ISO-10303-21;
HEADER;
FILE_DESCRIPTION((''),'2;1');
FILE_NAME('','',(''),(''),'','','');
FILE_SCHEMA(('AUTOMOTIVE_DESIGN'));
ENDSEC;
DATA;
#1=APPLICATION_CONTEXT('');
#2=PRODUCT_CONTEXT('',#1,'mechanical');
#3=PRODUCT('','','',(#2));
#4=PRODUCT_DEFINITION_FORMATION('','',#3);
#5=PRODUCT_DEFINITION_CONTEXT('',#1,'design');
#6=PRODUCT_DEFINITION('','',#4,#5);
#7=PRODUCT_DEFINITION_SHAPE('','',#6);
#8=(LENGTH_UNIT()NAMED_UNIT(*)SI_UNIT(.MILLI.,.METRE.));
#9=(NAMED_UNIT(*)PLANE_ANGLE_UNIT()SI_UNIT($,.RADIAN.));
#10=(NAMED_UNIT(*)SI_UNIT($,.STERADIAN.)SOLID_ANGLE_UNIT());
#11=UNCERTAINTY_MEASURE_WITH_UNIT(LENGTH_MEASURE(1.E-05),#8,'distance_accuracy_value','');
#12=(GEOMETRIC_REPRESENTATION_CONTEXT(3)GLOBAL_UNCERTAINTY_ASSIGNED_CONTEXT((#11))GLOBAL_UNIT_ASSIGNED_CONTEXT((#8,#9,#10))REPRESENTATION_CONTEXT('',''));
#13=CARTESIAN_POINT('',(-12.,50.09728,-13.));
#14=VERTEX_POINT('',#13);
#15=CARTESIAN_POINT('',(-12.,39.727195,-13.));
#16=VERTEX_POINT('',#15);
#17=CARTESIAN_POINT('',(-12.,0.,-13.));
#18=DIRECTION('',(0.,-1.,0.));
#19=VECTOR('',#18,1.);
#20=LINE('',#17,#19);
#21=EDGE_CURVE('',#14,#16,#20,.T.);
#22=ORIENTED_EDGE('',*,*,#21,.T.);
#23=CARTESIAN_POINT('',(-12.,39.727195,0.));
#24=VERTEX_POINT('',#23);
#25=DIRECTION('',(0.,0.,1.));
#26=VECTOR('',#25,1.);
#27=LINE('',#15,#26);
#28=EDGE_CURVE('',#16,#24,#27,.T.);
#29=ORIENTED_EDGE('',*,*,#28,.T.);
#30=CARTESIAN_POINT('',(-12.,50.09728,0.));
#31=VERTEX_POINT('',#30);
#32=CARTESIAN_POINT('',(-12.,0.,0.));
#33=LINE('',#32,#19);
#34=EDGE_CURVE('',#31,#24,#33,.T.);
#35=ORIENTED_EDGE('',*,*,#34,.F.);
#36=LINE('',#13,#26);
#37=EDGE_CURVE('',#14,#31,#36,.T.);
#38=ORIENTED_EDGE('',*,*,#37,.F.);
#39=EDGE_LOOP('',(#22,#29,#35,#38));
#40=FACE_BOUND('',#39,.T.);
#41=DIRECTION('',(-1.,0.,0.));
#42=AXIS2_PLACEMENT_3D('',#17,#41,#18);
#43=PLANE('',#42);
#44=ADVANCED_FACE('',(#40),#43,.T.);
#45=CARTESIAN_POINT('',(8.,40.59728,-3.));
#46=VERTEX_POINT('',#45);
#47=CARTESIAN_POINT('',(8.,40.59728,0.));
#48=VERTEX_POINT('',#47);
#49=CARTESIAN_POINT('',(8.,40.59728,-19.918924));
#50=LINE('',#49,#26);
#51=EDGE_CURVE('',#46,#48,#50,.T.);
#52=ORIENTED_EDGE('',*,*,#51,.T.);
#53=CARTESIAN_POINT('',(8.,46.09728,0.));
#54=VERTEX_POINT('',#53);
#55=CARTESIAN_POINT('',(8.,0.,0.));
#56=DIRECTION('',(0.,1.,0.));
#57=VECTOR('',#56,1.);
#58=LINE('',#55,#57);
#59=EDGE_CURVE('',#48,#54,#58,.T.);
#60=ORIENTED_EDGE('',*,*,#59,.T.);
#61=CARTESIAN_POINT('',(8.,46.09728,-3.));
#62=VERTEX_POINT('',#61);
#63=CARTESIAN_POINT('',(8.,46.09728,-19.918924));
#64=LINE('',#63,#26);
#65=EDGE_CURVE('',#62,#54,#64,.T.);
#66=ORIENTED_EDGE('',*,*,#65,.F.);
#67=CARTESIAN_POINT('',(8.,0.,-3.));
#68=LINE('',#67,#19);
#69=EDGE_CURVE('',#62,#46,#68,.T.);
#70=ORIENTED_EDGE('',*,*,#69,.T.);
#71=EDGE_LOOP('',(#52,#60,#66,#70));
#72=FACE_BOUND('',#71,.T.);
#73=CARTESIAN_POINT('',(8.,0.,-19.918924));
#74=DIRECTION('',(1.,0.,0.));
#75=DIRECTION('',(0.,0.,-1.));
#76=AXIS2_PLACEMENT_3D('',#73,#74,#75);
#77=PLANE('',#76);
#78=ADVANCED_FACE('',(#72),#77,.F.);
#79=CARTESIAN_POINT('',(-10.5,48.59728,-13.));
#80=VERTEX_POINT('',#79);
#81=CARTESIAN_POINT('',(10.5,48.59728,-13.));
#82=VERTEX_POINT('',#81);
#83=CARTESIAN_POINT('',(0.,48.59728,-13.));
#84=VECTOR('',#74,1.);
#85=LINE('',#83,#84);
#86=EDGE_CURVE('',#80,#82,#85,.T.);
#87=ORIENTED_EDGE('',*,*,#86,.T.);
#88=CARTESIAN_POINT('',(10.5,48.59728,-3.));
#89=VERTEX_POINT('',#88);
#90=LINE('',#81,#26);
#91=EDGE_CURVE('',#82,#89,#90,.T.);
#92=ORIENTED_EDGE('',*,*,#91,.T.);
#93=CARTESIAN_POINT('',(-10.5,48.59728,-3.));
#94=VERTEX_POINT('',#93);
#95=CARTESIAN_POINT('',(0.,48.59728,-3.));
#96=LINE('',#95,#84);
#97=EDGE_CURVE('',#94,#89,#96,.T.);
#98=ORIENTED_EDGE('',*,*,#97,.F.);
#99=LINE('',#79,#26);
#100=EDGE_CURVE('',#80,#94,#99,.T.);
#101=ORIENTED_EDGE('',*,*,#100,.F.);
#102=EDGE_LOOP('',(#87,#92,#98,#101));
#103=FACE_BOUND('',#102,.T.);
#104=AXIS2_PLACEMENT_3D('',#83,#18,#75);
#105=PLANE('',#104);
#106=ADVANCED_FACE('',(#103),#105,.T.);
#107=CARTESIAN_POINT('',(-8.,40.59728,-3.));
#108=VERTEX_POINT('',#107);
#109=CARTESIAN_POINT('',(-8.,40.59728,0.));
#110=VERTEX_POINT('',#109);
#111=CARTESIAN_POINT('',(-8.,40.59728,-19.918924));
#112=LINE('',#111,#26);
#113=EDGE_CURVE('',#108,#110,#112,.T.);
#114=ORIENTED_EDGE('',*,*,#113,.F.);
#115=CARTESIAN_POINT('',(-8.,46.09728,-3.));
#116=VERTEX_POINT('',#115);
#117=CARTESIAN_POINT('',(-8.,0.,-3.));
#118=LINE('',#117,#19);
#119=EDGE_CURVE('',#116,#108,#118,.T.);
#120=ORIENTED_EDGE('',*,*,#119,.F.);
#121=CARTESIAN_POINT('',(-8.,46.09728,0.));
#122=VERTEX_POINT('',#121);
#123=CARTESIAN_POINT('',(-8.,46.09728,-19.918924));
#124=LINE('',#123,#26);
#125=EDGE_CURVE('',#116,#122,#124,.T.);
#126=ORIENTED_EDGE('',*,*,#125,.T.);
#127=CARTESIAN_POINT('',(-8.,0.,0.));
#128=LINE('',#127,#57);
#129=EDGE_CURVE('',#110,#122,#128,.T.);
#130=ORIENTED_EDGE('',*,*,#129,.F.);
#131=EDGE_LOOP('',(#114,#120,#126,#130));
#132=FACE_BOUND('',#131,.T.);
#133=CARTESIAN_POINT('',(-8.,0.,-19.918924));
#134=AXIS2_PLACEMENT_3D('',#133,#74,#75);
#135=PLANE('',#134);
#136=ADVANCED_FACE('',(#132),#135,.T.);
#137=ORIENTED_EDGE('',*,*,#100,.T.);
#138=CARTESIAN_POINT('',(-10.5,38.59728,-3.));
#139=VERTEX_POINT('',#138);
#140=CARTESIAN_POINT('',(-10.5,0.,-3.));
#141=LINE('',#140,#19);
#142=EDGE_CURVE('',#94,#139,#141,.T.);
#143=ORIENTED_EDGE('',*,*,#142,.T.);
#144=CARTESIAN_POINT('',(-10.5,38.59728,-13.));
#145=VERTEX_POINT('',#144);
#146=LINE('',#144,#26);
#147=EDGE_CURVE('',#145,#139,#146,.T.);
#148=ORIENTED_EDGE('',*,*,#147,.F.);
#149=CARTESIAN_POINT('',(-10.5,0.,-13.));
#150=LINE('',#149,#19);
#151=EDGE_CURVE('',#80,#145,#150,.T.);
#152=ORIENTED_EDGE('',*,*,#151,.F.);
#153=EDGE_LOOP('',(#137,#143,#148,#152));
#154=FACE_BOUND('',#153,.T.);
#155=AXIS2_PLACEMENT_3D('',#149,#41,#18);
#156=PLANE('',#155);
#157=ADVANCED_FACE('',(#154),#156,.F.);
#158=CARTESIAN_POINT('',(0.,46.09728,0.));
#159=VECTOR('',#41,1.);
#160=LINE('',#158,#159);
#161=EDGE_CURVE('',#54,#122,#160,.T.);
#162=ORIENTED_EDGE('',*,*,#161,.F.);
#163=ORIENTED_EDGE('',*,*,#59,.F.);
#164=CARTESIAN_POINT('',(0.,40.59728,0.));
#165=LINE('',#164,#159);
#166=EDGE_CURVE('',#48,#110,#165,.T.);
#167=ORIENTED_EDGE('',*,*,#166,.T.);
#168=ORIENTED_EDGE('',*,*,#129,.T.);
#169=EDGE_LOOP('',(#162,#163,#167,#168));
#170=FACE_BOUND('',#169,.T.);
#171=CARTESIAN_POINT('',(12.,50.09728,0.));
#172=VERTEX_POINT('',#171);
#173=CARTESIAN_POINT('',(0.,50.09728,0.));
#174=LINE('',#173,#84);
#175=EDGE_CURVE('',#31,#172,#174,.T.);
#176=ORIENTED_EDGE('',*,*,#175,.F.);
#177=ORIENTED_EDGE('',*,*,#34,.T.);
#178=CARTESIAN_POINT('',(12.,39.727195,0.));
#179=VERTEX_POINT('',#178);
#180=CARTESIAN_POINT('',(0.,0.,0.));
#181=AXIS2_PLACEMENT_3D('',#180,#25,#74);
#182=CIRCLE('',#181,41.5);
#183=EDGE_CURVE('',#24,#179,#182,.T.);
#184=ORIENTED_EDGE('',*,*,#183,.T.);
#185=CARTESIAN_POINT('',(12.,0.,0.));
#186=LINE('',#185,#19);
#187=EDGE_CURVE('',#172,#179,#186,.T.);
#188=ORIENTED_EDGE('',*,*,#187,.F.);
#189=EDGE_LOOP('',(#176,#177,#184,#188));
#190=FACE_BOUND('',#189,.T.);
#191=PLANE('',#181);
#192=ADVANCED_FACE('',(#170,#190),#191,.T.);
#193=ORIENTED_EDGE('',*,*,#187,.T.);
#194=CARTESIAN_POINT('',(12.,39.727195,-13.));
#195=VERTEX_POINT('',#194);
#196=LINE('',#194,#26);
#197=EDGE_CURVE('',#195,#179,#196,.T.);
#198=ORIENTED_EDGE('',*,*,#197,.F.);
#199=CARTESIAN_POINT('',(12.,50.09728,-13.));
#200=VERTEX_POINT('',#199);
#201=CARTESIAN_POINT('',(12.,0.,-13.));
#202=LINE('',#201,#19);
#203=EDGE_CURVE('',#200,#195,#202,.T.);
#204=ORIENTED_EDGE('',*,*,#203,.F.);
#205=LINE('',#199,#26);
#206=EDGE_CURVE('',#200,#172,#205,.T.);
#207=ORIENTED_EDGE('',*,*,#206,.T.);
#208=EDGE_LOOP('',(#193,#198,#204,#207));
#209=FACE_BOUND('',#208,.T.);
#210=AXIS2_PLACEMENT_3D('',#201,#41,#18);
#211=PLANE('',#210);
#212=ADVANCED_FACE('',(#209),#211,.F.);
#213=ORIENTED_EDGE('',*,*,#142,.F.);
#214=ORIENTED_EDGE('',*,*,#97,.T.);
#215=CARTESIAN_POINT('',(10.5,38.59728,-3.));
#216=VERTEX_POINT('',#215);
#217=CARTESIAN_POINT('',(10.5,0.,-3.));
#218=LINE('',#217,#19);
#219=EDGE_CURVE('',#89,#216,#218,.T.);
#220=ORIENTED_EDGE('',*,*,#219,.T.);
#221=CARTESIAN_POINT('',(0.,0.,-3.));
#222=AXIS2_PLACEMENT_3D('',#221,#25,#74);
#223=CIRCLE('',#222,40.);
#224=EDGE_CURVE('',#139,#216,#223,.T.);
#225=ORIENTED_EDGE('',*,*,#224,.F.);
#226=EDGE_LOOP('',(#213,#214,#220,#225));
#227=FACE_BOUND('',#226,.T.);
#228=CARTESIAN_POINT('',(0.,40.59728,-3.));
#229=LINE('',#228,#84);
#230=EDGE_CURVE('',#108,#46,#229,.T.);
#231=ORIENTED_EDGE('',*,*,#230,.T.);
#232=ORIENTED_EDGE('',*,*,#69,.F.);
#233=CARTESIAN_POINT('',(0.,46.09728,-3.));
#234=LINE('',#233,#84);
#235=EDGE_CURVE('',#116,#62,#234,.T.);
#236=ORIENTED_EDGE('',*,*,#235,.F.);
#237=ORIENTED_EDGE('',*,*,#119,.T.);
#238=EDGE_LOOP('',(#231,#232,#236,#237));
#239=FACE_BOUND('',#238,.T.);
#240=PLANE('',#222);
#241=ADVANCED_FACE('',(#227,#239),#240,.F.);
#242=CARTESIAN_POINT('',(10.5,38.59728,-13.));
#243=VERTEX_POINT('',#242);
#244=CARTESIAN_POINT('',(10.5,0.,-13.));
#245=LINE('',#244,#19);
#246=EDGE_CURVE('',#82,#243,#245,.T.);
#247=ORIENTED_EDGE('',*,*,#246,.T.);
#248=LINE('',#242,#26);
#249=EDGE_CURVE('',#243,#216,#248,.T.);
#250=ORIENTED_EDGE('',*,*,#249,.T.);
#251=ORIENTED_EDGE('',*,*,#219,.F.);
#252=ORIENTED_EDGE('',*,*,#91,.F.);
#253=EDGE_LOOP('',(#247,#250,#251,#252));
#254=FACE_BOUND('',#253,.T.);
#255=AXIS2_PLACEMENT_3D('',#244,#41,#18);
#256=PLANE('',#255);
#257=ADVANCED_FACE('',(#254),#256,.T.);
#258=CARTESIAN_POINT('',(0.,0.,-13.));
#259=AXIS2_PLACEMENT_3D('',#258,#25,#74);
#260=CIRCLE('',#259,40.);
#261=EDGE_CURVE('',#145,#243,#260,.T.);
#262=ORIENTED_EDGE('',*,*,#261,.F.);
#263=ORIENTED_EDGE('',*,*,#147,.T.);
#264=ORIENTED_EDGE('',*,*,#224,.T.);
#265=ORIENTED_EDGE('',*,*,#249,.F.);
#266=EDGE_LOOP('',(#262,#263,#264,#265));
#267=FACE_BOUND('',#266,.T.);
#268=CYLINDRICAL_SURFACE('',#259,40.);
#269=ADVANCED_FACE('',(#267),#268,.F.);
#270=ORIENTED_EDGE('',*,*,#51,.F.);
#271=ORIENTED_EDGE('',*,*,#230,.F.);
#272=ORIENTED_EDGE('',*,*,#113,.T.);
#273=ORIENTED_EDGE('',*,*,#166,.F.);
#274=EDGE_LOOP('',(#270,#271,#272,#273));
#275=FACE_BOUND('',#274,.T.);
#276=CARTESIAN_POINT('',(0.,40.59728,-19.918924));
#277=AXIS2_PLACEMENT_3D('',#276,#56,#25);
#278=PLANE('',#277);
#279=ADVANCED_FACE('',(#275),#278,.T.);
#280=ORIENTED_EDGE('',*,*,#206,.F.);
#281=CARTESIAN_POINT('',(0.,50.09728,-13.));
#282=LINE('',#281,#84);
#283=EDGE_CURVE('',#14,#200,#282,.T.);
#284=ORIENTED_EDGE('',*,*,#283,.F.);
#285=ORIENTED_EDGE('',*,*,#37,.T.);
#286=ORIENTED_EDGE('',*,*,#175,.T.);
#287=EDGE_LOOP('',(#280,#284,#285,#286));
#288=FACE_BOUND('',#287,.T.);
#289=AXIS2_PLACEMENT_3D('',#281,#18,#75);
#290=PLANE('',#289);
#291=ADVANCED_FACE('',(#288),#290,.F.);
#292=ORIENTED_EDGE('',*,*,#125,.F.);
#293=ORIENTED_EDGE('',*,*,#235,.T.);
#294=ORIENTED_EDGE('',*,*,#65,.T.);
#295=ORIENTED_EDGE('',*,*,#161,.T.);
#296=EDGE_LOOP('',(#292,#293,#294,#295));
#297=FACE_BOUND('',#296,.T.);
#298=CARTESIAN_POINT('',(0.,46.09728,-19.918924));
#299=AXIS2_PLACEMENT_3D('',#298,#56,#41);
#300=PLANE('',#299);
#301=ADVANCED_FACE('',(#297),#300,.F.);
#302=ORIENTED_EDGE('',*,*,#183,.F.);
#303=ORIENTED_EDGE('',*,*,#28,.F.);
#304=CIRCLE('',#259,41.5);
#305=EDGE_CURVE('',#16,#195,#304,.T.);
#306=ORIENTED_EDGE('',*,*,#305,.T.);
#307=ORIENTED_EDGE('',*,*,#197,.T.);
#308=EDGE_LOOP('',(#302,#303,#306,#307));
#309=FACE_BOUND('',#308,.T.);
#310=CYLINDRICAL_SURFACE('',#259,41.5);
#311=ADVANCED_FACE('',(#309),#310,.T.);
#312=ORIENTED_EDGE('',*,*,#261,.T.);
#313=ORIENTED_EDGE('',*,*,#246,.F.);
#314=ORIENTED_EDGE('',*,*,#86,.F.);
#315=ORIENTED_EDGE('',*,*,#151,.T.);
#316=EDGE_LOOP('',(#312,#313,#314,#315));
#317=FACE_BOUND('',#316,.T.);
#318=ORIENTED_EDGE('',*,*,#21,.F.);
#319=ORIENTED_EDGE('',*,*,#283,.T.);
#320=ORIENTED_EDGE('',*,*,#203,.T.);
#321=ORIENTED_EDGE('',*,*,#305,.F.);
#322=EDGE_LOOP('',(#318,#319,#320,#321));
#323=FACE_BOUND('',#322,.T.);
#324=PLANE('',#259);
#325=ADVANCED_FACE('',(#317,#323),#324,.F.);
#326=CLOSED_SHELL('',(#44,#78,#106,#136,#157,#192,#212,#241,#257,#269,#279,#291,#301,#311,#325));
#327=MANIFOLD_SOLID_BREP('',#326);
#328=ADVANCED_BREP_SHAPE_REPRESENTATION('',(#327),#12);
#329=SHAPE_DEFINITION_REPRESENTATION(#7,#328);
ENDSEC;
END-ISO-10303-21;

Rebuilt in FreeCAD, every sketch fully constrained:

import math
import FreeCAD as App
import Part
import Sketcher

V = App.Vector


def add_polygon(sketch, points):
    """Adds a closed chain of lines whose ends are joined by coincident constraints."""
    first, n = sketch.GeometryCount, len(points)
    for a, b in zip(points, points[1:] + points[:1]):
        sketch.addGeometry(Part.LineSegment(App.Vector(*a, 0), App.Vector(*b, 0)), False)
    for i in range(n):
        sketch.addConstraint(Sketcher.Constraint("Coincident", first + i, 2, first + (i + 1) % n, 1))

doc = App.newDocument("Part")
body = doc.addObject("PartDesign::Body", "Body")

sketch1 = doc.addObject("Sketcher::SketchObject", "Sketch")
body.addObject(sketch1)
sketch1.AttachmentSupport = (doc.XY_Plane, [""])
sketch1.MapMode = "FlatFace"
sketch1.addGeometry(Part.LineSegment(V(-12, 50.1, 0), V(-12, 39.7, 0)), False)
sketch1.addGeometry(Part.ArcOfCircle(Part.Circle(V(0, 0, 0), V(0, 0, 1), 41.5), math.radians(107), math.radians(360)), False)
sketch1.addGeometry(Part.ArcOfCircle(Part.Circle(V(0, 0, 0), V(0, 0, 1), 41.5), math.radians(0), math.radians(73)), False)
sketch1.addGeometry(Part.LineSegment(V(12, 39.7, 0), V(12, 50.1, 0)), False)
sketch1.addGeometry(Part.LineSegment(V(12, 50.1, 0), V(-12, 50.1, 0)), False)
sketch1.addGeometry(Part.ArcOfCircle(Part.Circle(V(0, 0, 0), V(0, 0, 1), 40), math.radians(107), math.radians(360)), False)
sketch1.addGeometry(Part.ArcOfCircle(Part.Circle(V(0, 0, 0), V(0, 0, 1), 40), math.radians(105.22), math.radians(107.46)), False)
sketch1.addGeometry(Part.LineSegment(V(-10.5, 38.6, 0), V(-10.5, 48.6, 0)), False)
sketch1.addGeometry(Part.LineSegment(V(-10.5, 48.6, 0), V(10.5, 48.6, 0)), False)
sketch1.addGeometry(Part.LineSegment(V(10.5, 48.6, 0), V(10.5, 38.6, 0)), False)
sketch1.addGeometry(Part.ArcOfCircle(Part.Circle(V(0, 0, 0), V(0, 0, 1), 40), math.radians(72.54), math.radians(74.78)), False)
sketch1.addGeometry(Part.ArcOfCircle(Part.Circle(V(0, 0, 0), V(0, 0, 1), 40), math.radians(0), math.radians(73)), False)
sketch1.addConstraint(Sketcher.Constraint("Coincident", 0, 2, 1, 1))
sketch1.addConstraint(Sketcher.Constraint("Tangent", 1, 2, 2, 1))
sketch1.addConstraint(Sketcher.Constraint("Coincident", 2, 2, 3, 1))
sketch1.addConstraint(Sketcher.Constraint("Coincident", 3, 2, 4, 1))
sketch1.addConstraint(Sketcher.Constraint("Coincident", 4, 2, 0, 1))
sketch1.addConstraint(Sketcher.Constraint("Tangent", 5, 1, 6, 2))
sketch1.addConstraint(Sketcher.Constraint("Coincident", 6, 1, 7, 1))
sketch1.addConstraint(Sketcher.Constraint("Coincident", 7, 2, 8, 1))
sketch1.addConstraint(Sketcher.Constraint("Coincident", 8, 2, 9, 1))
sketch1.addConstraint(Sketcher.Constraint("Coincident", 9, 2, 10, 2))
sketch1.addConstraint(Sketcher.Constraint("Tangent", 10, 1, 11, 2))
sketch1.addConstraint(Sketcher.Constraint("Tangent", 11, 1, 5, 2))
sketch1.addConstraint(Sketcher.Constraint("Vertical", 0))
sketch1.addConstraint(Sketcher.Constraint("Vertical", 3))
sketch1.addConstraint(Sketcher.Constraint("Horizontal", 4))
sketch1.addConstraint(Sketcher.Constraint("Vertical", 7))
sketch1.addConstraint(Sketcher.Constraint("Horizontal", 8))
sketch1.addConstraint(Sketcher.Constraint("Vertical", 9))
sketch1.addConstraint(Sketcher.Constraint("Coincident", 1, 3, -1, 1))
sketch1.addConstraint(Sketcher.Constraint("Coincident", 5, 3, -1, 1))
sketch1.addConstraint(Sketcher.Constraint("Coincident", 10, 3, -1, 1))
sketch1.addConstraint(Sketcher.Constraint("Equal", 1, 2))
sketch1.addConstraint(Sketcher.Constraint("Equal", 5, 6))
sketch1.addConstraint(Sketcher.Constraint("PointOnObject", 1, 2, -1))
sketch1.addConstraint(Sketcher.Constraint("PointOnObject", 11, 1, -1))
sketch1.addConstraint(Sketcher.Constraint("Horizontal", 0, 2, 2, 2))
sketch1.addConstraint(Sketcher.Constraint("Horizontal", 6, 1, 9, 2))
sketch1.addConstraint(Sketcher.Constraint("Horizontal", 5, 1, 10, 1))
sketch1.addConstraint(Sketcher.Constraint("Vertical", 4, 2, 5, 1))
sketch1.addConstraint(Sketcher.Constraint("Radius", 5, 40.0))
sketch1.addConstraint(Sketcher.Constraint("Radius", 1, 41.5))
sketch1.addConstraint(Sketcher.Constraint("DistanceX", 4, 2, 4, 1, 24.0))
sketch1.addConstraint(Sketcher.Constraint("DistanceX", 8, 1, 8, 2, 21.0))
sketch1.addConstraint(Sketcher.Constraint("DistanceY", 7, 1, 7, 2, 10.0))
sketch1.addConstraint(Sketcher.Constraint("DistanceY", 6, 1, 4, 2, 11.5))
pad1 = doc.addObject("PartDesign::Pad", "Pad")
body.addObject(pad1)
pad1.Profile = sketch1
pad1.Length = 13
pad1.Reversed = True

sketch2 = doc.addObject("Sketcher::SketchObject", "Sketch001")
body.addObject(sketch2)
sketch2.AttachmentSupport = (doc.XY_Plane, [""])
sketch2.MapMode = "FlatFace"
sketch2.addGeometry(Part.ArcOfCircle(Part.Circle(V(0, 0, 0), V(0, 0, 1), 40), math.radians(107), math.radians(360)), False)
sketch2.addGeometry(Part.ArcOfCircle(Part.Circle(V(0, 0, 0), V(0, 0, 1), 40), math.radians(0), math.radians(73)), False)
sketch2.addGeometry(Part.ArcOfCircle(Part.Circle(V(0, 0, 0), V(0, 0, 1), 40), math.radians(72.54), math.radians(74.78)), False)
sketch2.addGeometry(Part.LineSegment(V(10.5, 38.6, 0), V(10.5, 48.6, 0)), False)
sketch2.addGeometry(Part.LineSegment(V(10.5, 48.6, 0), V(-10.5, 48.6, 0)), False)
sketch2.addGeometry(Part.LineSegment(V(-10.5, 48.6, 0), V(-10.5, 38.6, 0)), False)
sketch2.addGeometry(Part.ArcOfCircle(Part.Circle(V(0, 0, 0), V(0, 0, 1), 40), math.radians(105.22), math.radians(107.46)), False)
sketch2.addConstraint(Sketcher.Constraint("Tangent", 0, 2, 1, 1))
sketch2.addConstraint(Sketcher.Constraint("Tangent", 1, 2, 2, 1))
sketch2.addConstraint(Sketcher.Constraint("Coincident", 2, 2, 3, 1))
sketch2.addConstraint(Sketcher.Constraint("Coincident", 3, 2, 4, 1))
sketch2.addConstraint(Sketcher.Constraint("Coincident", 4, 2, 5, 1))
sketch2.addConstraint(Sketcher.Constraint("Coincident", 5, 2, 6, 1))
sketch2.addConstraint(Sketcher.Constraint("Tangent", 6, 2, 0, 1))
sketch2.addConstraint(Sketcher.Constraint("Vertical", 3))
sketch2.addConstraint(Sketcher.Constraint("Horizontal", 4))
sketch2.addConstraint(Sketcher.Constraint("Vertical", 5))
sketch2.addConstraint(Sketcher.Constraint("Coincident", 0, 3, -1, 1))
sketch2.addConstraint(Sketcher.Constraint("Coincident", 2, 3, -1, 1))
sketch2.addConstraint(Sketcher.Constraint("Equal", 2, 6))
sketch2.addConstraint(Sketcher.Constraint("PointOnObject", 0, 2, -1))
sketch2.addConstraint(Sketcher.Constraint("Horizontal", 2, 2, 5, 2))
sketch2.addConstraint(Sketcher.Constraint("Horizontal", 1, 2, 6, 2))
sketch2.addConstraint(Sketcher.Constraint("Radius", 0, 40.0))
sketch2.addConstraint(Sketcher.Constraint("DistanceX", 4, 2, 4, 1, 21.0))
sketch2.addConstraint(Sketcher.Constraint("DistanceY", 3, 1, 3, 2, 10.0))
sketch2.addConstraint(Sketcher.Constraint("DistanceX", -1, 1, 1, 2, 12.0))
pad2 = doc.addObject("PartDesign::Pad", "Pad001")
body.addObject(pad2)
pad2.Profile = sketch2
pad2.Length = 3
pad2.Reversed = True

sketch3 = doc.addObject("Sketcher::SketchObject", "Sketch002")
body.addObject(sketch3)
sketch3.AttachmentSupport = (doc.XY_Plane, [""])
sketch3.MapMode = "FlatFace"
sketch3.AttachmentOffset = App.Placement(V(0, 0, -3), App.Rotation())
add_polygon(sketch3, [(-8, 46), (-8, 41), (8, 41), (8, 46)])
sketch3.addConstraint(Sketcher.Constraint("Vertical", 0))
sketch3.addConstraint(Sketcher.Constraint("Horizontal", 1))
sketch3.addConstraint(Sketcher.Constraint("Vertical", 2))
sketch3.addConstraint(Sketcher.Constraint("Horizontal", 3))
sketch3.addConstraint(Sketcher.Constraint("DistanceX", 1, 1, 1, 2, 16.0))
sketch3.addConstraint(Sketcher.Constraint("DistanceY", 0, 2, 0, 1, 5.5))
sketch3.addConstraint(Sketcher.Constraint("DistanceX", 0, 2, -1, 1, 8.0))
sketch3.addConstraint(Sketcher.Constraint("DistanceY", -1, 1, 0, 2, 40.59728))
pocket1 = doc.addObject("PartDesign::Pocket", "Pocket")
body.addObject(pocket1)
pocket1.Profile = sketch3
pocket1.Length = 3
pocket1.Reversed = True

doc.recompute()
